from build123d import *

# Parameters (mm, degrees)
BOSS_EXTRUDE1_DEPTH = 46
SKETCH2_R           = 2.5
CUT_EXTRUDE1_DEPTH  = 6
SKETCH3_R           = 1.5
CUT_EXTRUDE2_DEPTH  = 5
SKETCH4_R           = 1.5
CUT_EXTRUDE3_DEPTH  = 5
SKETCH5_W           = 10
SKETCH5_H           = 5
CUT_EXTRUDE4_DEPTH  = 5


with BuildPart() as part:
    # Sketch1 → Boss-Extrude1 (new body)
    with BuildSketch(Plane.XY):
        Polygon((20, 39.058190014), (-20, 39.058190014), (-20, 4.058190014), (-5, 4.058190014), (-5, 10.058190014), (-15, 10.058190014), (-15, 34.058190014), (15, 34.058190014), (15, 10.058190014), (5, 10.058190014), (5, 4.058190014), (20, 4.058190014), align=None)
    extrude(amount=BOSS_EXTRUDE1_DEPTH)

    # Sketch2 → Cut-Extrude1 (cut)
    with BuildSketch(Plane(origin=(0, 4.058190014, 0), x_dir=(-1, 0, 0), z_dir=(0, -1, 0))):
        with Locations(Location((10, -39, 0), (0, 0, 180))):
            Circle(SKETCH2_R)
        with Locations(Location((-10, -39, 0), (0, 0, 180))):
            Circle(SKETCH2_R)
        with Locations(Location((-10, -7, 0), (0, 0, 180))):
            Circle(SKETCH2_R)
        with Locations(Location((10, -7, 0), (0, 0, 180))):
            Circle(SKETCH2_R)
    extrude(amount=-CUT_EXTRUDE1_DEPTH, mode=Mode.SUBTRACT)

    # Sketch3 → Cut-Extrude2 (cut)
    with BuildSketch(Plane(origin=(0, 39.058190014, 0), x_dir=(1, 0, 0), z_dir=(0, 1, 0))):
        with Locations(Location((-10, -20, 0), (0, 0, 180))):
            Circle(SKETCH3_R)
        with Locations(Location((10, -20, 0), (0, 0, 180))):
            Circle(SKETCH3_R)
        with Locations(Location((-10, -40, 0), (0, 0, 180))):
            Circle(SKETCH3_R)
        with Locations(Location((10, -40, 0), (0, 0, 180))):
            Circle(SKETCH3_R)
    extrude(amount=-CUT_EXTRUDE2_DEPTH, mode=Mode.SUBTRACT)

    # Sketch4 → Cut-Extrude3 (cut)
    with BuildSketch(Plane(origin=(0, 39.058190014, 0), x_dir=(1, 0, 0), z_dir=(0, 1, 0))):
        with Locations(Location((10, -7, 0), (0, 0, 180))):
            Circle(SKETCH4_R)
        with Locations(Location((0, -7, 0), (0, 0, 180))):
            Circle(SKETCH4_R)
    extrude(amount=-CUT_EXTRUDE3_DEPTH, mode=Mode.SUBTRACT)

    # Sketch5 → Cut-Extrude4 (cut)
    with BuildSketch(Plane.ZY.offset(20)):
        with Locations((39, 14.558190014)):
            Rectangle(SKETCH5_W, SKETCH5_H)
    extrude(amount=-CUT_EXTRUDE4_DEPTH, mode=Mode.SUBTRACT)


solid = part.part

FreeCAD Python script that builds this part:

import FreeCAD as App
import Part
import Sketcher

V = App.Vector

doc = App.newDocument("Part")
params = doc.addObject("Spreadsheet::Sheet", "Params")
for row, (alias, value) in enumerate([
    ("sketch1_width", "40 mm"),
    ("sketch1_width2", "15 mm"),
    ("sketch1_width3", "10 mm"),
    ("sketch1_height", "35 mm"),
    ("sketch1_height2", "6 mm"),
    ("pad1_length", "46 mm"),
    ("sketch2_diameter", "5 mm"),
    ("pocket1_length", "6 mm"),
    ("sketch3_diameter", "3 mm"),
    ("pocket2_length", "5 mm"),
    ("sketch4_diameter", "3 mm"),
    ("pocket3_length", "5 mm"),
    ("sketch5_width", "5 mm"),
    ("sketch5_height", "10 mm"),
    ("pocket4_length", "5 mm"),
], start=1):
    params.set(f"A{row}", alias)
    params.set(f"B{row}", "=" + value)
    params.setAlias(f"B{row}", alias)

body = doc.addObject("PartDesign::Body", "Body")

sketch1 = doc.addObject("Sketcher::SketchObject", "Sketch")
body.addObject(sketch1)
sketch1.AttachmentSupport = (doc.XY_Plane, [""])
sketch1.MapMode = "FlatFace"
sketch1.addGeometry([
    Part.LineSegment(V(20, 39.05819, 0), V(-20, 39.05819, 0)),
    Part.LineSegment(V(-20, 39.05819, 0), V(-20, 4.05819, 0)),
    Part.LineSegment(V(-20, 4.05819, 0), V(-5, 4.05819, 0)),
    Part.LineSegment(V(-5, 4.05819, 0), V(-5, 10.05819, 0)),
    Part.LineSegment(V(-5, 10.05819, 0), V(-15, 10.05819, 0)),
    Part.LineSegment(V(-15, 10.05819, 0), V(-15, 34.05819, 0)),
    Part.LineSegment(V(-15, 34.05819, 0), V(15, 34.05819, 0)),
    Part.LineSegment(V(15, 34.05819, 0), V(15, 10.05819, 0)),
    Part.LineSegment(V(15, 10.05819, 0), V(5, 10.05819, 0)),
    Part.LineSegment(V(5, 10.05819, 0), V(5, 4.05819, 0)),
    Part.LineSegment(V(5, 4.05819, 0), V(20, 4.05819, 0)),
    Part.LineSegment(V(20, 4.05819, 0), V(20, 39.05819, 0)),
], False)
sketch1.addConstraint([
    Sketcher.Constraint("Coincident", 0, 2, 1, 1),
    Sketcher.Constraint("Coincident", 1, 2, 2, 1),
    Sketcher.Constraint("Coincident", 2, 2, 3, 1),
    Sketcher.Constraint("Coincident", 3, 2, 4, 1),
    Sketcher.Constraint("Coincident", 4, 2, 5, 1),
    Sketcher.Constraint("Coincident", 5, 2, 6, 1),
    Sketcher.Constraint("Coincident", 6, 2, 7, 1),
    Sketcher.Constraint("Coincident", 7, 2, 8, 1),
    Sketcher.Constraint("Coincident", 8, 2, 9, 1),
    Sketcher.Constraint("Coincident", 9, 2, 10, 1),
    Sketcher.Constraint("Coincident", 10, 2, 11, 1),
    Sketcher.Constraint("Coincident", 11, 2, 0, 1),
    Sketcher.Constraint("Horizontal", 0),
    Sketcher.Constraint("Vertical", 1),
    Sketcher.Constraint("Horizontal", 2),
    Sketcher.Constraint("Vertical", 3),
    Sketcher.Constraint("Horizontal", 4),
    Sketcher.Constraint("Vertical", 5),
    Sketcher.Constraint("Horizontal", 6),
    Sketcher.Constraint("Vertical", 7),
    Sketcher.Constraint("Horizontal", 8),
    Sketcher.Constraint("Vertical", 9),
    Sketcher.Constraint("Horizontal", 10),
    Sketcher.Constraint("Vertical", 11),
    Sketcher.Constraint("Symmetric", 4, 2, 7, 2, -2),
    Sketcher.Constraint("Symmetric", 2, 2, 9, 2, -2),
    Sketcher.Constraint("Equal", 2, 10),
    Sketcher.Constraint("DistanceX", 0, 2, 0, 1, 40.0),
    Sketcher.Constraint("DistanceX", 2, 1, 2, 2, 15.0),
    Sketcher.Constraint("DistanceX", 4, 2, 4, 1, 10.0),
    Sketcher.Constraint("DistanceY", 1, 2, 1, 1, 35.0),
    Sketcher.Constraint("DistanceY", 3, 1, 3, 2, 6.0),
    Sketcher.Constraint("DistanceY", 5, 1, 5, 2, 24.0),
    Sketcher.Constraint("DistanceY", -1, 1, 0, 2, 39.05819),
])
sketch1.setExpression("Constraints[27]", "Params.sketch1_width")
sketch1.setExpression("Constraints[28]", "Params.sketch1_width2")
sketch1.setExpression("Constraints[29]", "Params.sketch1_width3")
sketch1.setExpression("Constraints[30]", "Params.sketch1_height")
sketch1.setExpression("Constraints[31]", "Params.sketch1_height2")
pad1 = doc.addObject("PartDesign::Pad", "Pad")
body.addObject(pad1)
pad1.Profile = sketch1
pad1.setExpression("Length", "Params.pad1_length")

sketch2 = doc.addObject("Sketcher::SketchObject", "Sketch001")
body.addObject(sketch2)
sketch2.AttachmentSupport = (doc.XZ_Plane, [""])
sketch2.MapMode = "FlatFace"
sketch2.AttachmentOffset = App.Placement(V(0, 0, -4.05819), App.Rotation())
sketch2.addGeometry([
    Part.Circle(V(-10, 39, 0), V(0, 0, 1), 2.5),
    Part.Circle(V(10, 39, 0), V(0, 0, 1), 2.5),
    Part.Circle(V(10, 7, 0), V(0, 0, 1), 2.5),
    Part.Circle(V(-10, 7, 0), V(0, 0, 1), 2.5),
], False)
sketch2.addConstraint([
    Sketcher.Constraint("Equal", 0, 1),
    Sketcher.Constraint("Equal", 1, 2),
    Sketcher.Constraint("Equal", 2, 3),
    Sketcher.Constraint("Symmetric", 0, 3, 1, 3, -2),
    Sketcher.Constraint("Symmetric", 2, 3, 3, 3, -2),
    Sketcher.Constraint("Vertical", 1, 3, 2, 3),
    Sketcher.Constraint("Diameter", 0, 5.0),
    Sketcher.Constraint("DistanceX", 0, 3, -1, 1, 10.0),
    Sketcher.Constraint("DistanceY", -1, 1, 0, 3, 39.0),
    Sketcher.Constraint("DistanceY", -1, 1, 2, 3, 7.0),
])
sketch2.setExpression("Constraints[6]", "Params.sketch2_diameter")
pocket1 = doc.addObject("PartDesign::Pocket", "Pocket")
body.addObject(pocket1)
pocket1.Profile = sketch2
pocket1.setExpression("Length", "Params.pocket1_length")

sketch3 = doc.addObject("Sketcher::SketchObject", "Sketch002")
body.addObject(sketch3)
sketch3.AttachmentSupport = (doc.XZ_Plane, [""])
sketch3.MapMode = "FlatFace"
sketch3.AttachmentOffset = App.Placement(V(0, 0, -39.05819), App.Rotation())
sketch3.addGeometry([
    Part.Circle(V(-10, 20, 0), V(0, 0, 1), 1.5),
    Part.Circle(V(10, 20, 0), V(0, 0, 1), 1.5),
    Part.Circle(V(-10, 40, 0), V(0, 0, 1), 1.5),
    Part.Circle(V(10, 40, 0), V(0, 0, 1), 1.5),
], False)
sketch3.addConstraint([
    Sketcher.Constraint("Equal", 0, 1),
    Sketcher.Constraint("Equal", 1, 2),
    Sketcher.Constraint("Equal", 2, 3),
    Sketcher.Constraint("Symmetric", 0, 3, 1, 3, -2),
    Sketcher.Constraint("Symmetric", 2, 3, 3, 3, -2),
    Sketcher.Constraint("Vertical", 0, 3, 2, 3),
    Sketcher.Constraint("Diameter", 0, 3.0),
    Sketcher.Constraint("DistanceX", 0, 3, -1, 1, 10.0),
    Sketcher.Constraint("DistanceY", -1, 1, 0, 3, 20.0),
    Sketcher.Constraint("DistanceY", -1, 1, 2, 3, 40.0),
])
sketch3.setExpression("Constraints[6]", "Params.sketch3_diameter")
pocket2 = doc.addObject("PartDesign::Pocket", "Pocket001")
body.addObject(pocket2)
pocket2.Profile = sketch3
pocket2.setExpression("Length", "Params.pocket2_length")
pocket2.Reversed = True

sketch4 = doc.addObject("Sketcher::SketchObject", "Sketch003")
body.addObject(sketch4)
sketch4.AttachmentSupport = (doc.XZ_Plane, [""])
sketch4.MapMode = "FlatFace"
sketch4.AttachmentOffset = App.Placement(V(0, 0, -39.05819), App.Rotation())
sketch4.addGeometry([
    Part.Circle(V(10, 7, 0), V(0, 0, 1), 1.5),
    Part.Circle(V(0, 7, 0), V(0, 0, 1), 1.5),
], False)
sketch4.addConstraint([
    Sketcher.Constraint("Equal", 0, 1),
    Sketcher.Constraint("PointOnObject", 1, 3, -2),
    Sketcher.Constraint("Horizontal", 0, 3, 1, 3),
    Sketcher.Constraint("Diameter", 0, 3.0),
    Sketcher.Constraint("DistanceX", -1, 1, 0, 3, 10.0),
    Sketcher.Constraint("DistanceY", -1, 1, 0, 3, 7.0),
])
sketch4.setExpression("Constraints[3]", "Params.sketch4_diameter")
pocket3 = doc.addObject("PartDesign::Pocket", "Pocket002")
body.addObject(pocket3)
pocket3.Profile = sketch4
pocket3.setExpression("Length", "Params.pocket3_length")
pocket3.Reversed = True

sketch5 = doc.addObject("Sketcher::SketchObject", "Sketch004")
body.addObject(sketch5)
sketch5.AttachmentSupport = (doc.YZ_Plane, [""])
sketch5.MapMode = "FlatFace"
sketch5.AttachmentOffset = App.Placement(V(0, 0, -20), App.Rotation())
sketch5.addGeometry([
    Part.LineSegment(V(17.05819, 34, 0), V(12.05819, 34, 0)),
    Part.LineSegment(V(12.05819, 34, 0), V(12.05819, 44, 0)),
    Part.LineSegment(V(12.05819, 44, 0), V(17.05819, 44, 0)),
    Part.LineSegment(V(17.05819, 44, 0), V(17.05819, 34, 0)),
], False)
sketch5.addConstraint([
    Sketcher.Constraint("Coincident", 0, 2, 1, 1),
    Sketcher.Constraint("Coincident", 1, 2, 2, 1),
    Sketcher.Constraint("Coincident", 2, 2, 3, 1),
    Sketcher.Constraint("Coincident", 3, 2, 0, 1),
    Sketcher.Constraint("Horizontal", 0),
    Sketcher.Constraint("Vertical", 1),
    Sketcher.Constraint("Horizontal", 2),
    Sketcher.Constraint("Vertical", 3),
    Sketcher.Constraint("DistanceX", 0, 2, 0, 1, 5.0),
    Sketcher.Constraint("DistanceY", 1, 1, 1, 2, 10.0),
    Sketcher.Constraint("DistanceY", -1, 1, 0, 2, 34.0),
    Sketcher.Constraint("DistanceX", -1, 1, 0, 2, 12.05819),
])
sketch5.setExpression("Constraints[8]", "Params.sketch5_width")
sketch5.setExpression("Constraints[9]", "Params.sketch5_height")
pocket4 = doc.addObject("PartDesign::Pocket", "Pocket003")
body.addObject(pocket4)
pocket4.Profile = sketch5
pocket4.setExpression("Length", "Params.pocket4_length")
pocket4.Reversed = True

doc.recompute()
